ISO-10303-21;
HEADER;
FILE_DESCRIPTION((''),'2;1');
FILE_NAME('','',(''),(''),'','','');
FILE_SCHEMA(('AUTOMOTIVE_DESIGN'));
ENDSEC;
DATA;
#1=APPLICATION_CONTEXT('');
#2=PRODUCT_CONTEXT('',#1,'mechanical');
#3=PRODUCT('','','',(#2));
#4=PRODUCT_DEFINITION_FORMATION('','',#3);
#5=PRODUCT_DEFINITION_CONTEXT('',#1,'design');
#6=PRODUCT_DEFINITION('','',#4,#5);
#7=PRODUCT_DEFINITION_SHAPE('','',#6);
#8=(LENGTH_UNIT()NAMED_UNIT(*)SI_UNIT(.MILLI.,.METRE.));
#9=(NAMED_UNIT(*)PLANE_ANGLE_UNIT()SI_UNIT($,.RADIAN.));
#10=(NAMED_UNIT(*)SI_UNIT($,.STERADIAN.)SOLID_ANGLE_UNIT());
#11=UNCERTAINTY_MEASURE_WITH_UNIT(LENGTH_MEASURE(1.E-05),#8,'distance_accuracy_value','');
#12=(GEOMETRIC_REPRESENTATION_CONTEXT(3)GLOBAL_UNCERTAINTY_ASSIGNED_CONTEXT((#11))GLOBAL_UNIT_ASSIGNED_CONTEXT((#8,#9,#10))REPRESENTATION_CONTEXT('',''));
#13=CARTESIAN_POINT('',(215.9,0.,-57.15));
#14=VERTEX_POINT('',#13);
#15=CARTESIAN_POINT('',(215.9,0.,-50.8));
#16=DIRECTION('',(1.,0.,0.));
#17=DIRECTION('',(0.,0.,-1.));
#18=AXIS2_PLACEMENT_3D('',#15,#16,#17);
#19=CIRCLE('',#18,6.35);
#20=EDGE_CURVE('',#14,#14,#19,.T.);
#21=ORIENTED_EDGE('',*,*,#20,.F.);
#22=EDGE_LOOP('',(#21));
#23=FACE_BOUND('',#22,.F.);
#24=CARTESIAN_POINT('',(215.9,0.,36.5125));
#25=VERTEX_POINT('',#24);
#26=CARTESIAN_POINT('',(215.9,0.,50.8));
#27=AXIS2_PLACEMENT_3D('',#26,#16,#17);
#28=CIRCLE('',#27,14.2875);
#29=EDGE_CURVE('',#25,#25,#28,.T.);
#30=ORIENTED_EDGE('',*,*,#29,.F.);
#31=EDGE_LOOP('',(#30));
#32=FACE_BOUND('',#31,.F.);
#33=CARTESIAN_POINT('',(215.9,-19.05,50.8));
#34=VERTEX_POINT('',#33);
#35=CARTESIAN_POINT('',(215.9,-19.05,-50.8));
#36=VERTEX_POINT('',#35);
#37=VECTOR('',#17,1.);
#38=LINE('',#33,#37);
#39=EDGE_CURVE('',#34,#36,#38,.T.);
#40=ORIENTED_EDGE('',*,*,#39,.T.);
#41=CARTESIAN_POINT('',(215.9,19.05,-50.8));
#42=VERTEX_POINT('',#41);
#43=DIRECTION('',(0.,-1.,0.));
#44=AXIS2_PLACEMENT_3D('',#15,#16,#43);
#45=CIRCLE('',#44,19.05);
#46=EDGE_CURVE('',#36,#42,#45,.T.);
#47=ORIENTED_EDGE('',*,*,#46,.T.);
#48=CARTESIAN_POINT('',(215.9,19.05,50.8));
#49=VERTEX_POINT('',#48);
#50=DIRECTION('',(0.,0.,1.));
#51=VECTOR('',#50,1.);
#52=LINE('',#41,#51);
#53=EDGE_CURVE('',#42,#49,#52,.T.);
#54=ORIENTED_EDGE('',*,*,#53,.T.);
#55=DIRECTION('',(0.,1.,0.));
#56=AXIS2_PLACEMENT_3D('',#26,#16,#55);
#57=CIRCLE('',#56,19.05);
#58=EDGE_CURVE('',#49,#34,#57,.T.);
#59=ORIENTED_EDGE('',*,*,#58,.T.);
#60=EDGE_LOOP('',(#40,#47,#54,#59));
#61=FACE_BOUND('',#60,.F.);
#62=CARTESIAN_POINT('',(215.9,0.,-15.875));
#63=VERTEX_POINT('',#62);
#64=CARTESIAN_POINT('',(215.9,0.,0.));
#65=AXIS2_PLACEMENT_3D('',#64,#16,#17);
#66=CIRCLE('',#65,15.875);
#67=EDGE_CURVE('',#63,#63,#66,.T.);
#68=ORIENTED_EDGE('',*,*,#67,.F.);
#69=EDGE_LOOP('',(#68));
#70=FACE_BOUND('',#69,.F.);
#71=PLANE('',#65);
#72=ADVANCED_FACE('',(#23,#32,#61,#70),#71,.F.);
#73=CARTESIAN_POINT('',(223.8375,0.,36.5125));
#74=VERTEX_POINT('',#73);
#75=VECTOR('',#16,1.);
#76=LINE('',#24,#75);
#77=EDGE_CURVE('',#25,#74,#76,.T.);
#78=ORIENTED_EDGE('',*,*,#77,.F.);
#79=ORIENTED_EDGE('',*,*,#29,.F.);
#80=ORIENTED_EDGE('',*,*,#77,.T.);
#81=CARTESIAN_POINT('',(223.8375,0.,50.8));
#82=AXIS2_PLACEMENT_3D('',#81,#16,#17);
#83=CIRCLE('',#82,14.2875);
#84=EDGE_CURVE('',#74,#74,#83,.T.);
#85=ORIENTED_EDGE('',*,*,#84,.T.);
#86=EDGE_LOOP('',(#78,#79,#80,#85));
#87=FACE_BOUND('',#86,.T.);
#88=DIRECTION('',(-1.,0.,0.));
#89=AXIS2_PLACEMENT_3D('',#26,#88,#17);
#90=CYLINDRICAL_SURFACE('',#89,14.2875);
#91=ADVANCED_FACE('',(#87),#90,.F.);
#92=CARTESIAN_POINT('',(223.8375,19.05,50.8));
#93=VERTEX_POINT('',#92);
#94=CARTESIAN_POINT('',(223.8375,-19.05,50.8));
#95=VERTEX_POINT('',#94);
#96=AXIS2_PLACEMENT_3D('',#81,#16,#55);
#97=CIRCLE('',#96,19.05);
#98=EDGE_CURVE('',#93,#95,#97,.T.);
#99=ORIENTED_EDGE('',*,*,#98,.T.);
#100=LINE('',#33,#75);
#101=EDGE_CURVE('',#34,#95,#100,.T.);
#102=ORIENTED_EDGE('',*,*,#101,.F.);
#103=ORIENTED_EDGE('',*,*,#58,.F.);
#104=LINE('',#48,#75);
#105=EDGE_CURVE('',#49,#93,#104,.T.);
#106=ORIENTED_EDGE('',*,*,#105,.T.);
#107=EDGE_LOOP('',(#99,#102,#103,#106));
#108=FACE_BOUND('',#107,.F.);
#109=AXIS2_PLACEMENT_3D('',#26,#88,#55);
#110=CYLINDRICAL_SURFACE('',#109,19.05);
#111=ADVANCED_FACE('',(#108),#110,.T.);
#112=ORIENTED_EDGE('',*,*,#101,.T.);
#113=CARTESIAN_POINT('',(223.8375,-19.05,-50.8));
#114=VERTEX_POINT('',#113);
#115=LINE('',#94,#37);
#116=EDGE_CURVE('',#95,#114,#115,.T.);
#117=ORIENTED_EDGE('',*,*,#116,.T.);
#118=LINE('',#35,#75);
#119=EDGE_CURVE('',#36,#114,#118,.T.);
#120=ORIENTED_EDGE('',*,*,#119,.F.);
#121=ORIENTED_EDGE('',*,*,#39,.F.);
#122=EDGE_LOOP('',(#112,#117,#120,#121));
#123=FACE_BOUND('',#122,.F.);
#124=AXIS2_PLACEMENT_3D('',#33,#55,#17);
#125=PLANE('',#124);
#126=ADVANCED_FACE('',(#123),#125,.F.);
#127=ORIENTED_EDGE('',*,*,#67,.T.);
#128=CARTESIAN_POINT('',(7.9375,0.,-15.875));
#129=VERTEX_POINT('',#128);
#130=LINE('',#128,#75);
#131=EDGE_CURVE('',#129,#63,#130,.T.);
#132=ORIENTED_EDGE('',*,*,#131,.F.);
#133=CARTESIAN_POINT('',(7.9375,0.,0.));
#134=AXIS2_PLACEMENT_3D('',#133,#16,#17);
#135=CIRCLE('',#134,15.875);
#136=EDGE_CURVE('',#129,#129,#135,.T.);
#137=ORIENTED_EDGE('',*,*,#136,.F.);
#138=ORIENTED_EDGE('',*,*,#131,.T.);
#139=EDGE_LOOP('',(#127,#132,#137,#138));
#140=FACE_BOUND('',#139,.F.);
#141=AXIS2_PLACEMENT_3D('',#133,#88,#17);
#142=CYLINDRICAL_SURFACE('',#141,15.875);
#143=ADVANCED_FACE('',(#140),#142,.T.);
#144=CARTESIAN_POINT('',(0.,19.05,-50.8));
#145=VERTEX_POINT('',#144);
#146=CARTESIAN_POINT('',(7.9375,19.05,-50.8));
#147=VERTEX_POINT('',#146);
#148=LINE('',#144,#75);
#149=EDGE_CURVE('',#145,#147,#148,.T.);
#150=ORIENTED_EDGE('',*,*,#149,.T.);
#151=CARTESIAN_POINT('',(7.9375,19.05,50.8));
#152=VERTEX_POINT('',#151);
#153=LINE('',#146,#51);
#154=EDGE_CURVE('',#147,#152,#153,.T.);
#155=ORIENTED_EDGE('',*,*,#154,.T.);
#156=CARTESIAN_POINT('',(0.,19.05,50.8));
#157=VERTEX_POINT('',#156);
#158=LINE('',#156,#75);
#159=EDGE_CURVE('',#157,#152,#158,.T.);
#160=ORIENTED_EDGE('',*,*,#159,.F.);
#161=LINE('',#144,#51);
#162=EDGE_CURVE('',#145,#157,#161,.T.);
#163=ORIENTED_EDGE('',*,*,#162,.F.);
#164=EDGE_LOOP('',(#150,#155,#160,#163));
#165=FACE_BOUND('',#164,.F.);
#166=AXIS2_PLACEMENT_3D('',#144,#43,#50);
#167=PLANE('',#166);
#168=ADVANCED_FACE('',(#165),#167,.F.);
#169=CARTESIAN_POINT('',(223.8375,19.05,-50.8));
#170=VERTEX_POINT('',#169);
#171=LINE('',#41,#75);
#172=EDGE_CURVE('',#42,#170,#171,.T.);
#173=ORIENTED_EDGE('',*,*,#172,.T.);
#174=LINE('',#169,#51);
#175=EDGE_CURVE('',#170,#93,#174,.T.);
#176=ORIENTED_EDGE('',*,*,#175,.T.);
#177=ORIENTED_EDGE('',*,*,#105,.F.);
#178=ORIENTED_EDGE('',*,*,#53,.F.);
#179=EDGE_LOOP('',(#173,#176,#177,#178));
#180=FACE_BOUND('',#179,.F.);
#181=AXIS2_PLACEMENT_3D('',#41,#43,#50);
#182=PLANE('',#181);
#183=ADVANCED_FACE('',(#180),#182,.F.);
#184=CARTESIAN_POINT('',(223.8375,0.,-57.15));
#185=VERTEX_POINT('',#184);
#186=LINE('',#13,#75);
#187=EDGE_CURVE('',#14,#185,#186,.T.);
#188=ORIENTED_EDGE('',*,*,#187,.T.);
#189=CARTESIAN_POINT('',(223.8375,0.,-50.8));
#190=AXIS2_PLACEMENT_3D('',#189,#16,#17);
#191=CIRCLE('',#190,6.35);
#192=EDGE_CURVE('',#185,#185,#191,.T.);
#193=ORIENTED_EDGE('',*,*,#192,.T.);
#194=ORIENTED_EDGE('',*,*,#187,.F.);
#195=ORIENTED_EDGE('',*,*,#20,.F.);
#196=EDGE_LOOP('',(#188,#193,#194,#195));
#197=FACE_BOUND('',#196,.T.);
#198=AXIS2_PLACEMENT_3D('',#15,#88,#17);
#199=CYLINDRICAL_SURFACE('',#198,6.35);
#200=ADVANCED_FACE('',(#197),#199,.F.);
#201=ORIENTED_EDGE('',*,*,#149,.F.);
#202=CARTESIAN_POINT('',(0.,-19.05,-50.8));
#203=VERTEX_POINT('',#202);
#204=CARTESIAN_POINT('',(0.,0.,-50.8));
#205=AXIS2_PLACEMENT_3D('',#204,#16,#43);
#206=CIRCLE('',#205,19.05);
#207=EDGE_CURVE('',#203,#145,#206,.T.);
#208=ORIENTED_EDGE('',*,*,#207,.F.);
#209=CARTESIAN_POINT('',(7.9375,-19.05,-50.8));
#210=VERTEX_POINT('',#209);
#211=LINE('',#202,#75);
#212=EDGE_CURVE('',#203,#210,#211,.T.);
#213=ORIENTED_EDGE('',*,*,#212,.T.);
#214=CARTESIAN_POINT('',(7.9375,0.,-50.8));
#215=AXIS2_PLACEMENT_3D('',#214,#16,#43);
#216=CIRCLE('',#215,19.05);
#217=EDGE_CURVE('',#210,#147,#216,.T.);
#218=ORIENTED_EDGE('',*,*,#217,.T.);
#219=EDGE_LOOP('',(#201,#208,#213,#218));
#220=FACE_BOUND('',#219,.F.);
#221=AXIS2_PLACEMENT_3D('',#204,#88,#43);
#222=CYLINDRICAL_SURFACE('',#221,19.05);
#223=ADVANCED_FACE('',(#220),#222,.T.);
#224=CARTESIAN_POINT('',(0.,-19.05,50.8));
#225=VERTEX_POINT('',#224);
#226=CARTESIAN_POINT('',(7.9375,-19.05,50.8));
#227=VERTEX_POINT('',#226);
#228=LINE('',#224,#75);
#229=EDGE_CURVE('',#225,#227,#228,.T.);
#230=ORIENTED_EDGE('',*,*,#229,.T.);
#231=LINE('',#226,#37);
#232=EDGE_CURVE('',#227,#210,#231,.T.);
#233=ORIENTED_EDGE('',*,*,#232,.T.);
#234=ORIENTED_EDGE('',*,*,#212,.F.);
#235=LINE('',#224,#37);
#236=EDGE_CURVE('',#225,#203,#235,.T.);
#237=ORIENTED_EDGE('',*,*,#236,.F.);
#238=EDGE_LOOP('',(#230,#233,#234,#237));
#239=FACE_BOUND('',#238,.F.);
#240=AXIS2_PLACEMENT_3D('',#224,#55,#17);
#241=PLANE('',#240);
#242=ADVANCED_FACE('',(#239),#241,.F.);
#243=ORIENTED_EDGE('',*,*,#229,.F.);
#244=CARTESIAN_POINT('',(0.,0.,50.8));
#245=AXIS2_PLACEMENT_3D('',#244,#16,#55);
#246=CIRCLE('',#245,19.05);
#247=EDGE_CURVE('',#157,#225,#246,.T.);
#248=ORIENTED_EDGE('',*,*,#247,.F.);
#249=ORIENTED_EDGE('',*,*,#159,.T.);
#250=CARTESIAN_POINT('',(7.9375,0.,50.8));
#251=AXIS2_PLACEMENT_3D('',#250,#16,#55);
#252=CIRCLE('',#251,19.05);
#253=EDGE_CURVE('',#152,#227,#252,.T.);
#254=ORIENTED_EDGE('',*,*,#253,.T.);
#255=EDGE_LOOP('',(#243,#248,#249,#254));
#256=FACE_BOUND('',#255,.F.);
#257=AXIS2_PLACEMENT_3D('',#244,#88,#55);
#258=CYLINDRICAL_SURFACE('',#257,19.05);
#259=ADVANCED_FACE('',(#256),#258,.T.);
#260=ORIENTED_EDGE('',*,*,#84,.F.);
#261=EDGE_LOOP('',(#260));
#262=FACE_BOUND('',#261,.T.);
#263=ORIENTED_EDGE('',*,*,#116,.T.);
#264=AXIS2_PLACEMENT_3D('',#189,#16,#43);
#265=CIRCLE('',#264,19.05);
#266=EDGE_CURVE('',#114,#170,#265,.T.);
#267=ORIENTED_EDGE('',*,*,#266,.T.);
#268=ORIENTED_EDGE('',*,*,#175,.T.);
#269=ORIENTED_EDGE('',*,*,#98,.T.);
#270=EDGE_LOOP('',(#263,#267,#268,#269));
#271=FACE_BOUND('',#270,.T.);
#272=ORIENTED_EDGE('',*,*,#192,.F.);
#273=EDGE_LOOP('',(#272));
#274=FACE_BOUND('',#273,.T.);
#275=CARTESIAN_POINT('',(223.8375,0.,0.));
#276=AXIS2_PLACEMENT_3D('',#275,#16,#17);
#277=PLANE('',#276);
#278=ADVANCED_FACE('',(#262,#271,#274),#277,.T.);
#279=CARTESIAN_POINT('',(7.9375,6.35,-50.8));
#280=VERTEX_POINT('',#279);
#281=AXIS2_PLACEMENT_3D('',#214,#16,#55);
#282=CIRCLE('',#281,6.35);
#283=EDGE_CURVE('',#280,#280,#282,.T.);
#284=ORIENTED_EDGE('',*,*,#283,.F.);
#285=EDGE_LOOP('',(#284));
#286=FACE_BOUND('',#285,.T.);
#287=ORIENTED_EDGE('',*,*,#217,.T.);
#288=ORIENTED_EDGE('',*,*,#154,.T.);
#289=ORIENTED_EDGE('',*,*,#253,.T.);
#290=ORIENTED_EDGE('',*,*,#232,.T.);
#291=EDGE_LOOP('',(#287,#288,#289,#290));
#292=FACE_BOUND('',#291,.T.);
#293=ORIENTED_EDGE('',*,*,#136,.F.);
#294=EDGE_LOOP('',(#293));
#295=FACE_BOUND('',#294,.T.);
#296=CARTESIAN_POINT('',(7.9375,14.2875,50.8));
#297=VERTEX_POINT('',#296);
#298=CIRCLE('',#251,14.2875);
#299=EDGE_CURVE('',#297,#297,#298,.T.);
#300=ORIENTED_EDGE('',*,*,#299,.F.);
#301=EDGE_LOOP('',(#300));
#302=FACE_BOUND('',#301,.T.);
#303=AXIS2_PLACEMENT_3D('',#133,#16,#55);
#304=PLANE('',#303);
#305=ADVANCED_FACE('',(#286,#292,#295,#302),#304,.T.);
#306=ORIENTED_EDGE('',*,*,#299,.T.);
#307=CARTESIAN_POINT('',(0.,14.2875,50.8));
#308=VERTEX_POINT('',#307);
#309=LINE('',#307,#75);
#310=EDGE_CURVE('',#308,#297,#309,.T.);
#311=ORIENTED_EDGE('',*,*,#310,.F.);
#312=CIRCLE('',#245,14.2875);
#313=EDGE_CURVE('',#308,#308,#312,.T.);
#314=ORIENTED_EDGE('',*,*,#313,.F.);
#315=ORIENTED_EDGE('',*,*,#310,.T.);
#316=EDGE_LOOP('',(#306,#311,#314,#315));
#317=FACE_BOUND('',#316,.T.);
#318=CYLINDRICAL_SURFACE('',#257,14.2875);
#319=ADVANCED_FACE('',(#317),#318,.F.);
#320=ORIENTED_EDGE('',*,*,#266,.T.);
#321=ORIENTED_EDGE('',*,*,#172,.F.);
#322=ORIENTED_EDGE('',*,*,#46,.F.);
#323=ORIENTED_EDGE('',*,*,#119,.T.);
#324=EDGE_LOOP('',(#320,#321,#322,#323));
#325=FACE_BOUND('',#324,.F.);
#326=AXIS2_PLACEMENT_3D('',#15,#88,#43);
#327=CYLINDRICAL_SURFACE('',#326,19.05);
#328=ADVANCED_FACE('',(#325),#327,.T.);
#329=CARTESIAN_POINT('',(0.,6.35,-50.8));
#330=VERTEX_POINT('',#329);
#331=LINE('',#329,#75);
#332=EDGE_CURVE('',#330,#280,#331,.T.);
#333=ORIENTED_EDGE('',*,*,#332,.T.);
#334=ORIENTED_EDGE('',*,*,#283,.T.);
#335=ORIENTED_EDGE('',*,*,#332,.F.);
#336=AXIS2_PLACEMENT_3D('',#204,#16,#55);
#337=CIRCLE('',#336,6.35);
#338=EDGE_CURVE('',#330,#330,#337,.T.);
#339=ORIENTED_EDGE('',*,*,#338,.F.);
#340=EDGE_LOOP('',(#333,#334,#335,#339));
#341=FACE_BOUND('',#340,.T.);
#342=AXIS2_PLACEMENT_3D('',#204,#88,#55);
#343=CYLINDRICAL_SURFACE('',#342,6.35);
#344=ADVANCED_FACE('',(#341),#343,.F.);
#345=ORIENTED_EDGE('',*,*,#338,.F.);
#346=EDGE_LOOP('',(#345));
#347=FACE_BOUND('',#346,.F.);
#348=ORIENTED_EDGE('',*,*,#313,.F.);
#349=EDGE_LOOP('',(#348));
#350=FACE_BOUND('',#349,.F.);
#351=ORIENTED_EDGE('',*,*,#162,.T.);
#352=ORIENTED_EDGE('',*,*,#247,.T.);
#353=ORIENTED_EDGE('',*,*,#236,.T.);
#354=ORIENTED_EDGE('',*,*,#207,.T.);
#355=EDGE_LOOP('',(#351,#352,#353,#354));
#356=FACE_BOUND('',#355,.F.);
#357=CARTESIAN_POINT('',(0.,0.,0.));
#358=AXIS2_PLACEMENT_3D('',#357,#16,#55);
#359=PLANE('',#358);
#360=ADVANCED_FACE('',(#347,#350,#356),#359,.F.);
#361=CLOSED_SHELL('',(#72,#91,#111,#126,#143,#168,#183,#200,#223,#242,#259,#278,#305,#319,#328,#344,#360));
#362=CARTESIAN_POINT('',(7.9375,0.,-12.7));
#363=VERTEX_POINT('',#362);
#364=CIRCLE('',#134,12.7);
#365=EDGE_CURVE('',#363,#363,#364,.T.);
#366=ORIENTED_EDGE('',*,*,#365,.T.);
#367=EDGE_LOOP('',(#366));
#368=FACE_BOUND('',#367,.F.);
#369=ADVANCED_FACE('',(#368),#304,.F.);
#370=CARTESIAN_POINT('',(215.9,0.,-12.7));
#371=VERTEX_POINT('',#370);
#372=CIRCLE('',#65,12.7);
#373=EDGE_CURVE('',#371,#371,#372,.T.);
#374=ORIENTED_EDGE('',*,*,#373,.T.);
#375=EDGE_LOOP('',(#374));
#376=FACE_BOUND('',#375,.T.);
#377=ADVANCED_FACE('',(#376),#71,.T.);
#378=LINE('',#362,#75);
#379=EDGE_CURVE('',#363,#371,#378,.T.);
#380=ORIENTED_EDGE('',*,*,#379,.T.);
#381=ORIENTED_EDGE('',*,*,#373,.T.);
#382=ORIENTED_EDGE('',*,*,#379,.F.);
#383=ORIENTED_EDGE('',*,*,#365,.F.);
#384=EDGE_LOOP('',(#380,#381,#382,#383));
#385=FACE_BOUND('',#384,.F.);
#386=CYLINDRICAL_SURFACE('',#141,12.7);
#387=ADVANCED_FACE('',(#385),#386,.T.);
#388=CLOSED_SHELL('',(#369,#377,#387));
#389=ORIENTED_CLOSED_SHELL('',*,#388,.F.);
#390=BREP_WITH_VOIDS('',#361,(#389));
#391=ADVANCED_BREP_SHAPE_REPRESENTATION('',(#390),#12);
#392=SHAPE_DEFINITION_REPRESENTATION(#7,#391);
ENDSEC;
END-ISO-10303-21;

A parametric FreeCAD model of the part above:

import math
import FreeCAD as App
import Part
import Sketcher
Q = App.Units.Quantity

doc = App.newDocument("Part")
params = doc.addObject("Spreadsheet::Sheet", "Params")
for row, (alias, value) in enumerate([
    ("sketch1_diameter", "0.5 in"),
    ("sketch1_radius", "0.75 in"),
    ("sketch1_diameter2", "1.125 in"),
    ("pad1_length", "0.3125 in"),
    ("sketch2_diameter", "1 in"),
    ("sketch2_diameter2", "1.25 in"),
    ("pad2_length", "8.1875 in"),
    ("sketch3_height", "4 in"),
    ("sketch3_diameter", "0.5 in"),
    ("sketch3_radius", "0.75 in"),
    ("sketch3_diameter2", "1.125 in"),
    ("pad3_length", "0.3125 in"),
], start=1):
    params.set(f"A{row}", alias)
    params.set(f"B{row}", "=" + value)
    params.setAlias(f"B{row}", alias)

body = doc.addObject("PartDesign::Body", "Body")

# Sketch on YZ plane
sketch1 = body.newObject("Sketcher::SketchObject", "Sketch")
sketch1.AttachmentSupport = (doc.getObject("YZ_Plane"), [""])
sketch1.MapMode = "FlatFace"
sketch1.addGeometry([
    Part.ArcOfCircle(Part.Circle(App.Vector(0, -51, 0), App.Vector(0, 0, 1), 19), math.radians(180), math.radians(360)),  # 0
    Part.LineSegment(App.Vector(19, -51, 0), App.Vector(19, 51, 0)),  # 1
    Part.ArcOfCircle(Part.Circle(App.Vector(0, 51, 0), App.Vector(0, 0, 1), 19), math.radians(0), math.radians(180)),  # 2
    Part.LineSegment(App.Vector(-19, 51, 0), App.Vector(-19, -51, 0)),  # 3
    Part.Circle(App.Vector(0, -51, 0), App.Vector(0, 0, 1), 6),  # 4
    Part.Circle(App.Vector(0, 51, 0), App.Vector(0, 0, 1), 14),  # 5
], False)
sketch1.addConstraint([
    Sketcher.Constraint("Tangent", 0, 2, 1, 1),
    Sketcher.Constraint("Tangent", 1, 2, 2, 1),
    Sketcher.Constraint("Tangent", 2, 2, 3, 1),
    Sketcher.Constraint("Tangent", 3, 2, 0, 1),
    Sketcher.Constraint("Vertical", 1),
    Sketcher.Constraint("Vertical", 3),
    Sketcher.Constraint("Coincident", 4, 3, 0, 3),
    Sketcher.Constraint("Coincident", 5, 3, 2, 3),
    Sketcher.Constraint("Symmetric", 0, 3, 2, 3, -1, 1),
    Sketcher.Constraint("Diameter", 4, Q("0.5 in")),
    Sketcher.Constraint("Radius", 0, Q("0.75 in")),
    Sketcher.Constraint("Diameter", 5, Q("1.125 in")),
    Sketcher.Constraint("DistanceY", 0, 3, -1, 1, Q("2 in")),
])
sketch1.setExpression("Constraints[9]", "Params.sketch1_diameter")
sketch1.setExpression("Constraints[10]", "Params.sketch1_radius")
sketch1.setExpression("Constraints[11]", "Params.sketch1_diameter2")
pad1 = body.newObject("PartDesign::Pad", "Pad")
pad1.Profile = sketch1
pad1.setExpression("Length", "Params.pad1_length")

# Sketch on YZ plane
sketch2 = body.newObject("Sketcher::SketchObject", "Sketch001")
sketch2.AttachmentSupport = (doc.getObject("YZ_Plane"), [""])
sketch2.MapMode = "FlatFace"
sketch2.AttachmentOffset = App.Placement(App.Vector(0, 0, 0.3125 * 25.4), App.Rotation())
sketch2.addGeometry([
    Part.Circle(App.Vector(0, 0, 0), App.Vector(0, 0, 1), 16),
    Part.Circle(App.Vector(0, 0, 0), App.Vector(0, 0, 1), 13),
], False)
sketch2.addConstraint([
    Sketcher.Constraint("Coincident", 0, 3, -1, 1),
    Sketcher.Constraint("Coincident", 1, 3, -1, 1),
    Sketcher.Constraint("Diameter", 1, Q("1 in")),
    Sketcher.Constraint("Diameter", 0, Q("1.25 in")),
])
sketch2.setExpression("Constraints[2]", "Params.sketch2_diameter")
sketch2.setExpression("Constraints[3]", "Params.sketch2_diameter2")
pad2 = body.newObject("PartDesign::Pad", "Pad001")
pad2.Profile = sketch2
pad2.setExpression("Length", "Params.pad2_length")

# Sketch on YZ plane
sketch3 = body.newObject("Sketcher::SketchObject", "Sketch002")
sketch3.AttachmentSupport = (doc.getObject("YZ_Plane"), [""])
sketch3.MapMode = "FlatFace"
sketch3.AttachmentOffset = App.Placement(App.Vector(0, 0, 8.5 * 25.4), App.Rotation())
sketch3.addGeometry([
    Part.LineSegment(App.Vector(19, -51, 0), App.Vector(19, 51, 0)),  # 0
    Part.ArcOfCircle(Part.Circle(App.Vector(0, 51, 0), App.Vector(0, 0, 1), 19), math.radians(0), math.radians(180)),  # 1
    Part.LineSegment(App.Vector(-19, 51, 0), App.Vector(-19, -51, 0)),  # 2
    Part.ArcOfCircle(Part.Circle(App.Vector(0, -51, 0), App.Vector(0, 0, 1), 19), math.radians(180), math.radians(360)),  # 3
    Part.Circle(App.Vector(0, 51, 0), App.Vector(0, 0, 1), 14),  # 4
    Part.Circle(App.Vector(0, -51, 0), App.Vector(0, 0, 1), 6),  # 5
], False)
sketch3.addConstraint([
    Sketcher.Constraint("Tangent", 0, 2, 1, 1),
    Sketcher.Constraint("Tangent", 1, 2, 2, 1),
    Sketcher.Constraint("Tangent", 2, 2, 3, 1),
    Sketcher.Constraint("Tangent", 3, 2, 0, 1),
    Sketcher.Constraint("Vertical", 0),
    Sketcher.Constraint("Vertical", 2),
    Sketcher.Constraint("Coincident", 4, 3, 1, 3),
    Sketcher.Constraint("Coincident", 5, 3, 3, 3),
    Sketcher.Constraint("Symmetric", 1, 3, 3, 3, -1, 1),
    Sketcher.Constraint("DistanceY", 0, 1, 0, 2, Q("4 in")),
    Sketcher.Constraint("Diameter", 5, Q("0.5 in")),
    Sketcher.Constraint("Radius", 1, Q("0.75 in")),
    Sketcher.Constraint("Diameter", 4, Q("1.125 in")),
])
sketch3.setExpression("Constraints[9]", "Params.sketch3_height")
sketch3.setExpression("Constraints[10]", "Params.sketch3_diameter")
sketch3.setExpression("Constraints[11]", "Params.sketch3_radius")
sketch3.setExpression("Constraints[12]", "Params.sketch3_diameter2")
pad3 = body.newObject("PartDesign::Pad", "Pad002")
pad3.Profile = sketch3
pad3.setExpression("Length", "Params.pad3_length")

doc.recompute()
